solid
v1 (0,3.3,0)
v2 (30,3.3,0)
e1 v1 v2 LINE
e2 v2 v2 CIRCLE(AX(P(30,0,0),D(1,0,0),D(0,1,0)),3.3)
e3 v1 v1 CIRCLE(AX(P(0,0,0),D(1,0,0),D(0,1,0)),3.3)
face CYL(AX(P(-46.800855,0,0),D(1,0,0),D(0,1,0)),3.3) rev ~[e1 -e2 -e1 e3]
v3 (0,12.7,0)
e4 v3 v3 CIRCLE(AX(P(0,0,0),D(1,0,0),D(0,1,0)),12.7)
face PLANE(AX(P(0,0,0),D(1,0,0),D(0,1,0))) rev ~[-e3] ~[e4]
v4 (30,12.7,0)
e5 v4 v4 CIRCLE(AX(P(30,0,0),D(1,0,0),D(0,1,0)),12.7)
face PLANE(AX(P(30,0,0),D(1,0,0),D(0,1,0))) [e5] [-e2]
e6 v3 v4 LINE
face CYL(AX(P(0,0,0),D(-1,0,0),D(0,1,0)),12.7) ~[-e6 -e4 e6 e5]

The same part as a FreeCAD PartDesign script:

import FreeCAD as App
import Part
import Sketcher

doc = App.newDocument("Part")
body = doc.addObject("PartDesign::Body", "Body")

# Sketch on YZ plane
sketch1 = body.newObject("Sketcher::SketchObject", "Sketch")
sketch1.AttachmentSupport = (doc.getObject("YZ_Plane"), [""])
sketch1.MapMode = "FlatFace"
sketch1.addGeometry(Part.Circle(App.Vector(0, 0, 0), App.Vector(0, 0, 1), 13), False)
sketch1.addConstraint([
    Sketcher.Constraint("Coincident", 0, 3, -1, 1),
    Sketcher.Constraint("Diameter", 0, 25.4),
])
pad1 = body.newObject("PartDesign::Pad", "Pad")
pad1.Profile = sketch1
pad1.Length = 30

# Sketch on YZ plane
sketch2 = body.newObject("Sketcher::SketchObject", "Sketch001")
sketch2.AttachmentSupport = (doc.getObject("YZ_Plane"), [""])
sketch2.MapMode = "FlatFace"
sketch2.addGeometry(Part.Circle(App.Vector(0, 0, 0), App.Vector(0, 0, 1), 3.3), False)
sketch2.addConstraint([
    Sketcher.Constraint("Coincident", 0, 3, -1, 1),
    Sketcher.Constraint("Diameter", 0, 6.6),
])
doc.recompute()
hole = body.newObject("PartDesign::Hole", "Hole")
hole.Profile = sketch2
hole.ThreadType = "None"
hole.Diameter = 6.6
hole.DepthType = "ThroughAll"
hole.Reversed = True

doc.recompute()
